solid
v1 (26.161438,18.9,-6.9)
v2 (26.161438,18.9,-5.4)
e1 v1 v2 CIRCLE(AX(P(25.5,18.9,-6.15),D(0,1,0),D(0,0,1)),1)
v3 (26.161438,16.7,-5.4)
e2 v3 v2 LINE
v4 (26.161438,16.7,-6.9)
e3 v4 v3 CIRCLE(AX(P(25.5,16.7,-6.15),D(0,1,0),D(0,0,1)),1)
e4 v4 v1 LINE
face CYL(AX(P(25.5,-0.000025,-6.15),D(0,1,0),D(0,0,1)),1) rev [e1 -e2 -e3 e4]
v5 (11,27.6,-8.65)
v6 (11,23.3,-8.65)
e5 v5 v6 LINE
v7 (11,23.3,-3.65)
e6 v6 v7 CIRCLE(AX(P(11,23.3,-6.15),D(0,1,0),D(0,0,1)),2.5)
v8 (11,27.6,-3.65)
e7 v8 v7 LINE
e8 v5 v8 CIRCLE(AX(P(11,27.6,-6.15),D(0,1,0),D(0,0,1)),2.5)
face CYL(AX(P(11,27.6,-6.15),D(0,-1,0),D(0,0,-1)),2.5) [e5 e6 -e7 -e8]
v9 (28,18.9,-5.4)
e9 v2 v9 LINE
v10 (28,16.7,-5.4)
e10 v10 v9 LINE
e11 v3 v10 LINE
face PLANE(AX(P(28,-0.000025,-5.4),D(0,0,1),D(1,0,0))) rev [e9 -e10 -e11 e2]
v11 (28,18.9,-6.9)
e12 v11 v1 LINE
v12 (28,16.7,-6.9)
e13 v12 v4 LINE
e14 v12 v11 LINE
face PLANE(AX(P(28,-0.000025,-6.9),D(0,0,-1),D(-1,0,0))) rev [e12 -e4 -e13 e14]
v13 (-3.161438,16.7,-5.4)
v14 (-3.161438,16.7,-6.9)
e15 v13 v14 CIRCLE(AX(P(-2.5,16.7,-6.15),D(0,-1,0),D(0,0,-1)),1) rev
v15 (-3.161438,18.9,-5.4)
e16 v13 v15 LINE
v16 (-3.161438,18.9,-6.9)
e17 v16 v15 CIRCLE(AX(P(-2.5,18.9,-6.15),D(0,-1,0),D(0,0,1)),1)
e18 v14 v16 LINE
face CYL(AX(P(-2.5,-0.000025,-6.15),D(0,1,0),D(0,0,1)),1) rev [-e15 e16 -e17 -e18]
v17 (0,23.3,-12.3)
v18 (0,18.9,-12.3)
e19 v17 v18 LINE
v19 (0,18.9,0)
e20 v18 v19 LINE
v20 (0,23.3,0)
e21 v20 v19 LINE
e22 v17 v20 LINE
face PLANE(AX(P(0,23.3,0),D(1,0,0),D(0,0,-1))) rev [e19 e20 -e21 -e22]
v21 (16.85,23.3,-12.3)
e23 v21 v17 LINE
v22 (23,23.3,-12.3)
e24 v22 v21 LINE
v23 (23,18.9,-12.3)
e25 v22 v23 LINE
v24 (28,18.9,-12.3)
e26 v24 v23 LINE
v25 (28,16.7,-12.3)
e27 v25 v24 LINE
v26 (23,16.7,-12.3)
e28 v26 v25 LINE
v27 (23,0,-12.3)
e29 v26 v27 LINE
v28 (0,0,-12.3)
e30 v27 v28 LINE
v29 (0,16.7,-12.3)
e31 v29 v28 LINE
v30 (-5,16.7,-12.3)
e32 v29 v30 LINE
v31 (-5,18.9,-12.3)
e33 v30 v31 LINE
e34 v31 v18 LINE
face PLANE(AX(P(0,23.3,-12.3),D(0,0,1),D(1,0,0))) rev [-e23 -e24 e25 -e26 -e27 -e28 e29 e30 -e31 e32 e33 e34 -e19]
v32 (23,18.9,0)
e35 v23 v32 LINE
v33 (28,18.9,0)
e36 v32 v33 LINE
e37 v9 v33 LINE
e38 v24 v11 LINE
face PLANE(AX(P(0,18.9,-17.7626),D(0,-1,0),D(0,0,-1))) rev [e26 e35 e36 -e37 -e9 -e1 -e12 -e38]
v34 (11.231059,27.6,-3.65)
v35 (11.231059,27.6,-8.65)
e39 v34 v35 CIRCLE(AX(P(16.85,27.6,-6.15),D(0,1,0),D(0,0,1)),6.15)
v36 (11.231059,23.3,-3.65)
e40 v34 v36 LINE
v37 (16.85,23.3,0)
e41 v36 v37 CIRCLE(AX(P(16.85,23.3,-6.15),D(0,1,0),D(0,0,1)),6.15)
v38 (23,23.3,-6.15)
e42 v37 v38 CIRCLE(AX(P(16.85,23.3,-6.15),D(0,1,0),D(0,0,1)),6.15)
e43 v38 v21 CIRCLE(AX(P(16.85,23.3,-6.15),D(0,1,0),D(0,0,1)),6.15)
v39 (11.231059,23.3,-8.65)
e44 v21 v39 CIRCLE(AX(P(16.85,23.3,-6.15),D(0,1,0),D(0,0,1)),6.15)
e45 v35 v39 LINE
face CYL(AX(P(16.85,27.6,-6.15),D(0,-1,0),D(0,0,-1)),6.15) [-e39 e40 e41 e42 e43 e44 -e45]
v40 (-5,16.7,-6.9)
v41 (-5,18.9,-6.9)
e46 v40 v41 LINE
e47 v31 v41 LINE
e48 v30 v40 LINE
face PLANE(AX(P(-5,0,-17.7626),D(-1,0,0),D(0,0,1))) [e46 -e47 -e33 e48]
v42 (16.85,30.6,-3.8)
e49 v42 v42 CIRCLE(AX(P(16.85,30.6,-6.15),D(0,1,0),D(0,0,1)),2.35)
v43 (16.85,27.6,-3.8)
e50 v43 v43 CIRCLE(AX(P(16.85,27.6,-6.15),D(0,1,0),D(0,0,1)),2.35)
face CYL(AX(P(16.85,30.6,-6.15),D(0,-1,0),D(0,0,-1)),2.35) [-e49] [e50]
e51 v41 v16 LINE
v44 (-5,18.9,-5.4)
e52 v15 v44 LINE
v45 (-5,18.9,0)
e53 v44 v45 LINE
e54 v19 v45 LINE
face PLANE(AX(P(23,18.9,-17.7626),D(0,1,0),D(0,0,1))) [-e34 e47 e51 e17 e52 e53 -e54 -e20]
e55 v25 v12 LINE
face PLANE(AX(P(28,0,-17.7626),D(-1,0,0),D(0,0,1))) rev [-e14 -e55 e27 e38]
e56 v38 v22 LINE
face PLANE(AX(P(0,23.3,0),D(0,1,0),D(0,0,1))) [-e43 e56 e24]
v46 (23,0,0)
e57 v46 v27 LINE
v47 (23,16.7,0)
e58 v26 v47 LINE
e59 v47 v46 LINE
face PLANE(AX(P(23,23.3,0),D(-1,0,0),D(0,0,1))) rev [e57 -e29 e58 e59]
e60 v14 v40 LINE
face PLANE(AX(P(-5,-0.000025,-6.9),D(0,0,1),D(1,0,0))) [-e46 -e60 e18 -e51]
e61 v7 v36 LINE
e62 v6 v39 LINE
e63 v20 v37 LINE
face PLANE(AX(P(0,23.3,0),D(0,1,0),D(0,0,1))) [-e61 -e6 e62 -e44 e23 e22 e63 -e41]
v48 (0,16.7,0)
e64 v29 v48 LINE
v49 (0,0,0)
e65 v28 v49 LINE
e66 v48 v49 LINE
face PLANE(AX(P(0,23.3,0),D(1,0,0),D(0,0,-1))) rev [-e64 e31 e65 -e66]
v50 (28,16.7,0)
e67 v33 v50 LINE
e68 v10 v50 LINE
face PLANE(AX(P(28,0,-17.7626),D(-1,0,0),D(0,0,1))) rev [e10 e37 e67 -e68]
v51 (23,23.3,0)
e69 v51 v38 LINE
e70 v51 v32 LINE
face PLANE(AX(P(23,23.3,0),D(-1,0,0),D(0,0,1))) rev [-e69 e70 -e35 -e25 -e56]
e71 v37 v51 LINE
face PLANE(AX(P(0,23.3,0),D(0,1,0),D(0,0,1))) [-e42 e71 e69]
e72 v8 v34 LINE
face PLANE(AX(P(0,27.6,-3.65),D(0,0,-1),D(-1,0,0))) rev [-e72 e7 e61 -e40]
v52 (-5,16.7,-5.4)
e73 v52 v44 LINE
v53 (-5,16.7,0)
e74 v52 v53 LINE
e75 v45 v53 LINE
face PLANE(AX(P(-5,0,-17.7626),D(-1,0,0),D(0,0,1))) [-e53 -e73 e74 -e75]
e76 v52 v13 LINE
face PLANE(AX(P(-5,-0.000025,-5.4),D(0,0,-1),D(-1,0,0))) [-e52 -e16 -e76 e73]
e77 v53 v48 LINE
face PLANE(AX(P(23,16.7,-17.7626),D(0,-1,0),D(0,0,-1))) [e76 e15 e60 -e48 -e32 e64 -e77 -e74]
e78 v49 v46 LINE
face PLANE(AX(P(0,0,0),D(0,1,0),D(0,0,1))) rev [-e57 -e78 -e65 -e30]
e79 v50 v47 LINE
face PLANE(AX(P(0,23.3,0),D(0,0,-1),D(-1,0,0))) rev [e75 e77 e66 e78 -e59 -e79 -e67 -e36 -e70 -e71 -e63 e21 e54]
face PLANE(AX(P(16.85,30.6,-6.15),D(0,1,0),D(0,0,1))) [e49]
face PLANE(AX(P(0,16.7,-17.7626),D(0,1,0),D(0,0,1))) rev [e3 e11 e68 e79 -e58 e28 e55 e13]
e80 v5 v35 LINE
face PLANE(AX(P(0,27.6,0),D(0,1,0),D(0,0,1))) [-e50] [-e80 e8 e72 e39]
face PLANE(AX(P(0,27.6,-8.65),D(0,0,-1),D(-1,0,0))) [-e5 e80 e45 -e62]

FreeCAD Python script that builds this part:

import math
import FreeCAD as App
import Part
import Sketcher
Q = App.Units.Quantity


def add_polygon(sketch, points):
    """Adds a closed chain of lines whose ends are joined by coincident constraints."""
    first, n = sketch.GeometryCount, len(points)
    for a, b in zip(points, points[1:] + points[:1]):
        sketch.addGeometry(Part.LineSegment(App.Vector(*a, 0), App.Vector(*b, 0)), False)
    for i in range(n):
        sketch.addConstraint(Sketcher.Constraint("Coincident", first + i, 2, first + (i + 1) % n, 1))

doc = App.newDocument("Part")
body = doc.addObject("PartDesign::Body", "Body")

# Sketch on XZ plane
sketch1 = body.newObject("Sketcher::SketchObject", "Sketch")
sketch1.AttachmentSupport = (doc.getObject("XZ_Plane"), [""])
sketch1.MapMode = "FlatFace"
add_polygon(sketch1, [(0, -12), (0, 0), (23, 0), (23, -12)])  # lines 0-3
sketch1.addConstraint([
    Sketcher.Constraint("Vertical", 0),
    Sketcher.Constraint("Horizontal", 1),
    Sketcher.Constraint("Vertical", 2),
    Sketcher.Constraint("Horizontal", 3),
    Sketcher.Constraint("Coincident", 0, 2, -1, 1),
    Sketcher.Constraint("DistanceX", 1, 1, 1, 2, Q("23 mm")),
    Sketcher.Constraint("DistanceY", 0, 1, 0, 2, Q("12.3 mm")),
])
pad1 = body.newObject("PartDesign::Pad", "Pad")
pad1.Profile = sketch1
pad1.Length = 23.3
pad1.Reversed = True

# Sketch on XY plane
sketch2 = body.newObject("Sketcher::SketchObject", "Sketch001")
sketch2.AttachmentSupport = (doc.getObject("XY_Plane"), [""])
sketch2.MapMode = "FlatFace"
add_polygon(sketch2, [(23, 18.9), (23, 16.7), (28, 16.7), (28, 18.9)])  # lines 0-3
sketch2.addConstraint([
    Sketcher.Constraint("Vertical", 0),
    Sketcher.Constraint("Horizontal", 1),
    Sketcher.Constraint("Vertical", 2),
    Sketcher.Constraint("Horizontal", 3),
    Sketcher.Constraint("DistanceX", 1, 1, 1, 2, Q("5 mm")),
    Sketcher.Constraint("DistanceY", 0, 2, 0, 1, Q("2.2 mm")),
    Sketcher.Constraint("DistanceX", -1, 1, 0, 2, Q("23 mm")),
    Sketcher.Constraint("DistanceY", -1, 1, 0, 2, Q("16.7 mm")),
])
pad2 = body.newObject("PartDesign::Pad", "Pad001")
pad2.Profile = sketch2
pad2.Length = 12.3
pad2.Reversed = True

# Sketch on XZ plane
sketch3 = body.newObject("Sketcher::SketchObject", "Sketch002")
sketch3.AttachmentSupport = (doc.getObject("XZ_Plane"), [""])
sketch3.MapMode = "FlatFace"
sketch3.AttachmentOffset = App.Placement(App.Vector(0, 0, -18.9), App.Rotation())
sketch3.addGeometry([
    Part.LineSegment(App.Vector(28, -6.9, 0), App.Vector(26.2, -6.9, 0)),
    Part.ArcOfCircle(Part.Circle(App.Vector(25.5, -6.2, 0), App.Vector(0, 0, 1), 1), math.radians(49), math.radians(311)),
    Part.LineSegment(App.Vector(26.2, -5.4, 0), App.Vector(28, -5.4, 0)),
    Part.LineSegment(App.Vector(28, -5.4, 0), App.Vector(28, -6.9, 0)),
], False)
sketch3.addConstraint([
    Sketcher.Constraint("Coincident", 0, 2, 1, 2),
    Sketcher.Constraint("Coincident", 1, 1, 2, 1),
    Sketcher.Constraint("Coincident", 2, 2, 3, 1),
    Sketcher.Constraint("Coincident", 3, 2, 0, 1),
    Sketcher.Constraint("Horizontal", 0),
    Sketcher.Constraint("Horizontal", 2),
    Sketcher.Constraint("Vertical", 3),
    Sketcher.Constraint("Vertical", 0, 2, 1, 1),
    Sketcher.Constraint("Radius", 1, Q("1 mm")),
    Sketcher.Constraint("DistanceY", 3, 2, 3, 1, Q("1.5 mm")),
    Sketcher.Constraint("DistanceX", -1, 1, 2, 2, Q("28 mm")),
    Sketcher.Constraint("DistanceX", -1, 1, 1, 3, Q("25.5 mm")),
    Sketcher.Constraint("DistanceY", 0, 2, -1, 1, Q("6.9 mm")),
])
pocket1 = body.newObject("PartDesign::Pocket", "Pocket")
pocket1.Profile = sketch3
pocket1.Type = "ThroughAll"
pocket1.Reversed = True
doc.recompute()

datumplane = body.newObject("PartDesign::Plane", "DatumPlane")
datumplane.AttachmentSupport = (doc.getObject("YZ_Plane"), [""])
datumplane.MapMode = "FlatFace"
datumplane.AttachmentOffset = App.Placement(App.Vector(0, 0, 11.5), App.Rotation())
mirrored = body.newObject("PartDesign::Mirrored", "Mirrored")
mirrored.Originals = [pad2, pocket1]
mirrored.MirrorPlane = (datumplane, [""])
body.Tip = mirrored

# Sketch on XZ plane
sketch4 = body.newObject("Sketcher::SketchObject", "Sketch003")
sketch4.AttachmentSupport = (doc.getObject("XZ_Plane"), [""])
sketch4.MapMode = "FlatFace"
sketch4.AttachmentOffset = App.Placement(App.Vector(0, 0, -23.3), App.Rotation())
sketch4.addGeometry([
    Part.LineSegment(App.Vector(11, -3.65, 0), App.Vector(11.23, -3.65, 0)),
    Part.ArcOfCircle(Part.Circle(App.Vector(16.85, -6.15, 0), App.Vector(0, 0, 1), 6.15), math.radians(-156), math.radians(156)),
    Part.LineSegment(App.Vector(11.23, -8.65, 0), App.Vector(11, -8.65, 0)),
    Part.ArcOfCircle(Part.Circle(App.Vector(11, -6.15, 0), App.Vector(0, 0, 1), 2.5), math.radians(90), math.radians(270)),
], False)
sketch4.addConstraint([
    Sketcher.Constraint("Coincident", 0, 2, 1, 2),
    Sketcher.Constraint("Coincident", 1, 1, 2, 1),
    Sketcher.Constraint("Tangent", 2, 2, 3, 2),
    Sketcher.Constraint("Tangent", 3, 1, 0, 1),
    Sketcher.Constraint("Horizontal", 0),
    Sketcher.Constraint("Horizontal", 2),
    Sketcher.Constraint("Horizontal", 1, 3, 3, 3),
    Sketcher.Constraint("Radius", 3, Q("2.5 mm")),
    Sketcher.Constraint("Radius", 1, Q("6.15 mm")),
    Sketcher.Constraint("DistanceX", -1, 1, 3, 3, Q("11 mm")),
    Sketcher.Constraint("DistanceX", -1, 1, 1, 3, Q("16.85 mm")),
    Sketcher.Constraint("DistanceY", 1, 3, -1, 1, Q("6.15 mm")),
])
pad3 = body.newObject("PartDesign::Pad", "Pad002")
pad3.Profile = sketch4
pad3.Length = 4.3
pad3.Reversed = True

# Sketch on XZ plane
sketch5 = body.newObject("Sketcher::SketchObject", "Sketch004")
sketch5.AttachmentSupport = (doc.getObject("XZ_Plane"), [""])
sketch5.MapMode = "FlatFace"
sketch5.AttachmentOffset = App.Placement(App.Vector(0, 0, -27.6), App.Rotation())
sketch5.addGeometry(Part.Circle(App.Vector(16.9, -6.2, 0), App.Vector(0, 0, 1), 2.4), False)
sketch5.addConstraint([
    Sketcher.Constraint("Diameter", 0, Q("4.7 mm")),
    Sketcher.Constraint("DistanceX", -1, 1, 0, 3, Q("16.85 mm")),
    Sketcher.Constraint("DistanceY", 0, 3, -1, 1, Q("6.15 mm")),
])
pad4 = body.newObject("PartDesign::Pad", "Pad003")
pad4.Profile = sketch5
pad4.Length = 3
pad4.Reversed = True

doc.recompute()
